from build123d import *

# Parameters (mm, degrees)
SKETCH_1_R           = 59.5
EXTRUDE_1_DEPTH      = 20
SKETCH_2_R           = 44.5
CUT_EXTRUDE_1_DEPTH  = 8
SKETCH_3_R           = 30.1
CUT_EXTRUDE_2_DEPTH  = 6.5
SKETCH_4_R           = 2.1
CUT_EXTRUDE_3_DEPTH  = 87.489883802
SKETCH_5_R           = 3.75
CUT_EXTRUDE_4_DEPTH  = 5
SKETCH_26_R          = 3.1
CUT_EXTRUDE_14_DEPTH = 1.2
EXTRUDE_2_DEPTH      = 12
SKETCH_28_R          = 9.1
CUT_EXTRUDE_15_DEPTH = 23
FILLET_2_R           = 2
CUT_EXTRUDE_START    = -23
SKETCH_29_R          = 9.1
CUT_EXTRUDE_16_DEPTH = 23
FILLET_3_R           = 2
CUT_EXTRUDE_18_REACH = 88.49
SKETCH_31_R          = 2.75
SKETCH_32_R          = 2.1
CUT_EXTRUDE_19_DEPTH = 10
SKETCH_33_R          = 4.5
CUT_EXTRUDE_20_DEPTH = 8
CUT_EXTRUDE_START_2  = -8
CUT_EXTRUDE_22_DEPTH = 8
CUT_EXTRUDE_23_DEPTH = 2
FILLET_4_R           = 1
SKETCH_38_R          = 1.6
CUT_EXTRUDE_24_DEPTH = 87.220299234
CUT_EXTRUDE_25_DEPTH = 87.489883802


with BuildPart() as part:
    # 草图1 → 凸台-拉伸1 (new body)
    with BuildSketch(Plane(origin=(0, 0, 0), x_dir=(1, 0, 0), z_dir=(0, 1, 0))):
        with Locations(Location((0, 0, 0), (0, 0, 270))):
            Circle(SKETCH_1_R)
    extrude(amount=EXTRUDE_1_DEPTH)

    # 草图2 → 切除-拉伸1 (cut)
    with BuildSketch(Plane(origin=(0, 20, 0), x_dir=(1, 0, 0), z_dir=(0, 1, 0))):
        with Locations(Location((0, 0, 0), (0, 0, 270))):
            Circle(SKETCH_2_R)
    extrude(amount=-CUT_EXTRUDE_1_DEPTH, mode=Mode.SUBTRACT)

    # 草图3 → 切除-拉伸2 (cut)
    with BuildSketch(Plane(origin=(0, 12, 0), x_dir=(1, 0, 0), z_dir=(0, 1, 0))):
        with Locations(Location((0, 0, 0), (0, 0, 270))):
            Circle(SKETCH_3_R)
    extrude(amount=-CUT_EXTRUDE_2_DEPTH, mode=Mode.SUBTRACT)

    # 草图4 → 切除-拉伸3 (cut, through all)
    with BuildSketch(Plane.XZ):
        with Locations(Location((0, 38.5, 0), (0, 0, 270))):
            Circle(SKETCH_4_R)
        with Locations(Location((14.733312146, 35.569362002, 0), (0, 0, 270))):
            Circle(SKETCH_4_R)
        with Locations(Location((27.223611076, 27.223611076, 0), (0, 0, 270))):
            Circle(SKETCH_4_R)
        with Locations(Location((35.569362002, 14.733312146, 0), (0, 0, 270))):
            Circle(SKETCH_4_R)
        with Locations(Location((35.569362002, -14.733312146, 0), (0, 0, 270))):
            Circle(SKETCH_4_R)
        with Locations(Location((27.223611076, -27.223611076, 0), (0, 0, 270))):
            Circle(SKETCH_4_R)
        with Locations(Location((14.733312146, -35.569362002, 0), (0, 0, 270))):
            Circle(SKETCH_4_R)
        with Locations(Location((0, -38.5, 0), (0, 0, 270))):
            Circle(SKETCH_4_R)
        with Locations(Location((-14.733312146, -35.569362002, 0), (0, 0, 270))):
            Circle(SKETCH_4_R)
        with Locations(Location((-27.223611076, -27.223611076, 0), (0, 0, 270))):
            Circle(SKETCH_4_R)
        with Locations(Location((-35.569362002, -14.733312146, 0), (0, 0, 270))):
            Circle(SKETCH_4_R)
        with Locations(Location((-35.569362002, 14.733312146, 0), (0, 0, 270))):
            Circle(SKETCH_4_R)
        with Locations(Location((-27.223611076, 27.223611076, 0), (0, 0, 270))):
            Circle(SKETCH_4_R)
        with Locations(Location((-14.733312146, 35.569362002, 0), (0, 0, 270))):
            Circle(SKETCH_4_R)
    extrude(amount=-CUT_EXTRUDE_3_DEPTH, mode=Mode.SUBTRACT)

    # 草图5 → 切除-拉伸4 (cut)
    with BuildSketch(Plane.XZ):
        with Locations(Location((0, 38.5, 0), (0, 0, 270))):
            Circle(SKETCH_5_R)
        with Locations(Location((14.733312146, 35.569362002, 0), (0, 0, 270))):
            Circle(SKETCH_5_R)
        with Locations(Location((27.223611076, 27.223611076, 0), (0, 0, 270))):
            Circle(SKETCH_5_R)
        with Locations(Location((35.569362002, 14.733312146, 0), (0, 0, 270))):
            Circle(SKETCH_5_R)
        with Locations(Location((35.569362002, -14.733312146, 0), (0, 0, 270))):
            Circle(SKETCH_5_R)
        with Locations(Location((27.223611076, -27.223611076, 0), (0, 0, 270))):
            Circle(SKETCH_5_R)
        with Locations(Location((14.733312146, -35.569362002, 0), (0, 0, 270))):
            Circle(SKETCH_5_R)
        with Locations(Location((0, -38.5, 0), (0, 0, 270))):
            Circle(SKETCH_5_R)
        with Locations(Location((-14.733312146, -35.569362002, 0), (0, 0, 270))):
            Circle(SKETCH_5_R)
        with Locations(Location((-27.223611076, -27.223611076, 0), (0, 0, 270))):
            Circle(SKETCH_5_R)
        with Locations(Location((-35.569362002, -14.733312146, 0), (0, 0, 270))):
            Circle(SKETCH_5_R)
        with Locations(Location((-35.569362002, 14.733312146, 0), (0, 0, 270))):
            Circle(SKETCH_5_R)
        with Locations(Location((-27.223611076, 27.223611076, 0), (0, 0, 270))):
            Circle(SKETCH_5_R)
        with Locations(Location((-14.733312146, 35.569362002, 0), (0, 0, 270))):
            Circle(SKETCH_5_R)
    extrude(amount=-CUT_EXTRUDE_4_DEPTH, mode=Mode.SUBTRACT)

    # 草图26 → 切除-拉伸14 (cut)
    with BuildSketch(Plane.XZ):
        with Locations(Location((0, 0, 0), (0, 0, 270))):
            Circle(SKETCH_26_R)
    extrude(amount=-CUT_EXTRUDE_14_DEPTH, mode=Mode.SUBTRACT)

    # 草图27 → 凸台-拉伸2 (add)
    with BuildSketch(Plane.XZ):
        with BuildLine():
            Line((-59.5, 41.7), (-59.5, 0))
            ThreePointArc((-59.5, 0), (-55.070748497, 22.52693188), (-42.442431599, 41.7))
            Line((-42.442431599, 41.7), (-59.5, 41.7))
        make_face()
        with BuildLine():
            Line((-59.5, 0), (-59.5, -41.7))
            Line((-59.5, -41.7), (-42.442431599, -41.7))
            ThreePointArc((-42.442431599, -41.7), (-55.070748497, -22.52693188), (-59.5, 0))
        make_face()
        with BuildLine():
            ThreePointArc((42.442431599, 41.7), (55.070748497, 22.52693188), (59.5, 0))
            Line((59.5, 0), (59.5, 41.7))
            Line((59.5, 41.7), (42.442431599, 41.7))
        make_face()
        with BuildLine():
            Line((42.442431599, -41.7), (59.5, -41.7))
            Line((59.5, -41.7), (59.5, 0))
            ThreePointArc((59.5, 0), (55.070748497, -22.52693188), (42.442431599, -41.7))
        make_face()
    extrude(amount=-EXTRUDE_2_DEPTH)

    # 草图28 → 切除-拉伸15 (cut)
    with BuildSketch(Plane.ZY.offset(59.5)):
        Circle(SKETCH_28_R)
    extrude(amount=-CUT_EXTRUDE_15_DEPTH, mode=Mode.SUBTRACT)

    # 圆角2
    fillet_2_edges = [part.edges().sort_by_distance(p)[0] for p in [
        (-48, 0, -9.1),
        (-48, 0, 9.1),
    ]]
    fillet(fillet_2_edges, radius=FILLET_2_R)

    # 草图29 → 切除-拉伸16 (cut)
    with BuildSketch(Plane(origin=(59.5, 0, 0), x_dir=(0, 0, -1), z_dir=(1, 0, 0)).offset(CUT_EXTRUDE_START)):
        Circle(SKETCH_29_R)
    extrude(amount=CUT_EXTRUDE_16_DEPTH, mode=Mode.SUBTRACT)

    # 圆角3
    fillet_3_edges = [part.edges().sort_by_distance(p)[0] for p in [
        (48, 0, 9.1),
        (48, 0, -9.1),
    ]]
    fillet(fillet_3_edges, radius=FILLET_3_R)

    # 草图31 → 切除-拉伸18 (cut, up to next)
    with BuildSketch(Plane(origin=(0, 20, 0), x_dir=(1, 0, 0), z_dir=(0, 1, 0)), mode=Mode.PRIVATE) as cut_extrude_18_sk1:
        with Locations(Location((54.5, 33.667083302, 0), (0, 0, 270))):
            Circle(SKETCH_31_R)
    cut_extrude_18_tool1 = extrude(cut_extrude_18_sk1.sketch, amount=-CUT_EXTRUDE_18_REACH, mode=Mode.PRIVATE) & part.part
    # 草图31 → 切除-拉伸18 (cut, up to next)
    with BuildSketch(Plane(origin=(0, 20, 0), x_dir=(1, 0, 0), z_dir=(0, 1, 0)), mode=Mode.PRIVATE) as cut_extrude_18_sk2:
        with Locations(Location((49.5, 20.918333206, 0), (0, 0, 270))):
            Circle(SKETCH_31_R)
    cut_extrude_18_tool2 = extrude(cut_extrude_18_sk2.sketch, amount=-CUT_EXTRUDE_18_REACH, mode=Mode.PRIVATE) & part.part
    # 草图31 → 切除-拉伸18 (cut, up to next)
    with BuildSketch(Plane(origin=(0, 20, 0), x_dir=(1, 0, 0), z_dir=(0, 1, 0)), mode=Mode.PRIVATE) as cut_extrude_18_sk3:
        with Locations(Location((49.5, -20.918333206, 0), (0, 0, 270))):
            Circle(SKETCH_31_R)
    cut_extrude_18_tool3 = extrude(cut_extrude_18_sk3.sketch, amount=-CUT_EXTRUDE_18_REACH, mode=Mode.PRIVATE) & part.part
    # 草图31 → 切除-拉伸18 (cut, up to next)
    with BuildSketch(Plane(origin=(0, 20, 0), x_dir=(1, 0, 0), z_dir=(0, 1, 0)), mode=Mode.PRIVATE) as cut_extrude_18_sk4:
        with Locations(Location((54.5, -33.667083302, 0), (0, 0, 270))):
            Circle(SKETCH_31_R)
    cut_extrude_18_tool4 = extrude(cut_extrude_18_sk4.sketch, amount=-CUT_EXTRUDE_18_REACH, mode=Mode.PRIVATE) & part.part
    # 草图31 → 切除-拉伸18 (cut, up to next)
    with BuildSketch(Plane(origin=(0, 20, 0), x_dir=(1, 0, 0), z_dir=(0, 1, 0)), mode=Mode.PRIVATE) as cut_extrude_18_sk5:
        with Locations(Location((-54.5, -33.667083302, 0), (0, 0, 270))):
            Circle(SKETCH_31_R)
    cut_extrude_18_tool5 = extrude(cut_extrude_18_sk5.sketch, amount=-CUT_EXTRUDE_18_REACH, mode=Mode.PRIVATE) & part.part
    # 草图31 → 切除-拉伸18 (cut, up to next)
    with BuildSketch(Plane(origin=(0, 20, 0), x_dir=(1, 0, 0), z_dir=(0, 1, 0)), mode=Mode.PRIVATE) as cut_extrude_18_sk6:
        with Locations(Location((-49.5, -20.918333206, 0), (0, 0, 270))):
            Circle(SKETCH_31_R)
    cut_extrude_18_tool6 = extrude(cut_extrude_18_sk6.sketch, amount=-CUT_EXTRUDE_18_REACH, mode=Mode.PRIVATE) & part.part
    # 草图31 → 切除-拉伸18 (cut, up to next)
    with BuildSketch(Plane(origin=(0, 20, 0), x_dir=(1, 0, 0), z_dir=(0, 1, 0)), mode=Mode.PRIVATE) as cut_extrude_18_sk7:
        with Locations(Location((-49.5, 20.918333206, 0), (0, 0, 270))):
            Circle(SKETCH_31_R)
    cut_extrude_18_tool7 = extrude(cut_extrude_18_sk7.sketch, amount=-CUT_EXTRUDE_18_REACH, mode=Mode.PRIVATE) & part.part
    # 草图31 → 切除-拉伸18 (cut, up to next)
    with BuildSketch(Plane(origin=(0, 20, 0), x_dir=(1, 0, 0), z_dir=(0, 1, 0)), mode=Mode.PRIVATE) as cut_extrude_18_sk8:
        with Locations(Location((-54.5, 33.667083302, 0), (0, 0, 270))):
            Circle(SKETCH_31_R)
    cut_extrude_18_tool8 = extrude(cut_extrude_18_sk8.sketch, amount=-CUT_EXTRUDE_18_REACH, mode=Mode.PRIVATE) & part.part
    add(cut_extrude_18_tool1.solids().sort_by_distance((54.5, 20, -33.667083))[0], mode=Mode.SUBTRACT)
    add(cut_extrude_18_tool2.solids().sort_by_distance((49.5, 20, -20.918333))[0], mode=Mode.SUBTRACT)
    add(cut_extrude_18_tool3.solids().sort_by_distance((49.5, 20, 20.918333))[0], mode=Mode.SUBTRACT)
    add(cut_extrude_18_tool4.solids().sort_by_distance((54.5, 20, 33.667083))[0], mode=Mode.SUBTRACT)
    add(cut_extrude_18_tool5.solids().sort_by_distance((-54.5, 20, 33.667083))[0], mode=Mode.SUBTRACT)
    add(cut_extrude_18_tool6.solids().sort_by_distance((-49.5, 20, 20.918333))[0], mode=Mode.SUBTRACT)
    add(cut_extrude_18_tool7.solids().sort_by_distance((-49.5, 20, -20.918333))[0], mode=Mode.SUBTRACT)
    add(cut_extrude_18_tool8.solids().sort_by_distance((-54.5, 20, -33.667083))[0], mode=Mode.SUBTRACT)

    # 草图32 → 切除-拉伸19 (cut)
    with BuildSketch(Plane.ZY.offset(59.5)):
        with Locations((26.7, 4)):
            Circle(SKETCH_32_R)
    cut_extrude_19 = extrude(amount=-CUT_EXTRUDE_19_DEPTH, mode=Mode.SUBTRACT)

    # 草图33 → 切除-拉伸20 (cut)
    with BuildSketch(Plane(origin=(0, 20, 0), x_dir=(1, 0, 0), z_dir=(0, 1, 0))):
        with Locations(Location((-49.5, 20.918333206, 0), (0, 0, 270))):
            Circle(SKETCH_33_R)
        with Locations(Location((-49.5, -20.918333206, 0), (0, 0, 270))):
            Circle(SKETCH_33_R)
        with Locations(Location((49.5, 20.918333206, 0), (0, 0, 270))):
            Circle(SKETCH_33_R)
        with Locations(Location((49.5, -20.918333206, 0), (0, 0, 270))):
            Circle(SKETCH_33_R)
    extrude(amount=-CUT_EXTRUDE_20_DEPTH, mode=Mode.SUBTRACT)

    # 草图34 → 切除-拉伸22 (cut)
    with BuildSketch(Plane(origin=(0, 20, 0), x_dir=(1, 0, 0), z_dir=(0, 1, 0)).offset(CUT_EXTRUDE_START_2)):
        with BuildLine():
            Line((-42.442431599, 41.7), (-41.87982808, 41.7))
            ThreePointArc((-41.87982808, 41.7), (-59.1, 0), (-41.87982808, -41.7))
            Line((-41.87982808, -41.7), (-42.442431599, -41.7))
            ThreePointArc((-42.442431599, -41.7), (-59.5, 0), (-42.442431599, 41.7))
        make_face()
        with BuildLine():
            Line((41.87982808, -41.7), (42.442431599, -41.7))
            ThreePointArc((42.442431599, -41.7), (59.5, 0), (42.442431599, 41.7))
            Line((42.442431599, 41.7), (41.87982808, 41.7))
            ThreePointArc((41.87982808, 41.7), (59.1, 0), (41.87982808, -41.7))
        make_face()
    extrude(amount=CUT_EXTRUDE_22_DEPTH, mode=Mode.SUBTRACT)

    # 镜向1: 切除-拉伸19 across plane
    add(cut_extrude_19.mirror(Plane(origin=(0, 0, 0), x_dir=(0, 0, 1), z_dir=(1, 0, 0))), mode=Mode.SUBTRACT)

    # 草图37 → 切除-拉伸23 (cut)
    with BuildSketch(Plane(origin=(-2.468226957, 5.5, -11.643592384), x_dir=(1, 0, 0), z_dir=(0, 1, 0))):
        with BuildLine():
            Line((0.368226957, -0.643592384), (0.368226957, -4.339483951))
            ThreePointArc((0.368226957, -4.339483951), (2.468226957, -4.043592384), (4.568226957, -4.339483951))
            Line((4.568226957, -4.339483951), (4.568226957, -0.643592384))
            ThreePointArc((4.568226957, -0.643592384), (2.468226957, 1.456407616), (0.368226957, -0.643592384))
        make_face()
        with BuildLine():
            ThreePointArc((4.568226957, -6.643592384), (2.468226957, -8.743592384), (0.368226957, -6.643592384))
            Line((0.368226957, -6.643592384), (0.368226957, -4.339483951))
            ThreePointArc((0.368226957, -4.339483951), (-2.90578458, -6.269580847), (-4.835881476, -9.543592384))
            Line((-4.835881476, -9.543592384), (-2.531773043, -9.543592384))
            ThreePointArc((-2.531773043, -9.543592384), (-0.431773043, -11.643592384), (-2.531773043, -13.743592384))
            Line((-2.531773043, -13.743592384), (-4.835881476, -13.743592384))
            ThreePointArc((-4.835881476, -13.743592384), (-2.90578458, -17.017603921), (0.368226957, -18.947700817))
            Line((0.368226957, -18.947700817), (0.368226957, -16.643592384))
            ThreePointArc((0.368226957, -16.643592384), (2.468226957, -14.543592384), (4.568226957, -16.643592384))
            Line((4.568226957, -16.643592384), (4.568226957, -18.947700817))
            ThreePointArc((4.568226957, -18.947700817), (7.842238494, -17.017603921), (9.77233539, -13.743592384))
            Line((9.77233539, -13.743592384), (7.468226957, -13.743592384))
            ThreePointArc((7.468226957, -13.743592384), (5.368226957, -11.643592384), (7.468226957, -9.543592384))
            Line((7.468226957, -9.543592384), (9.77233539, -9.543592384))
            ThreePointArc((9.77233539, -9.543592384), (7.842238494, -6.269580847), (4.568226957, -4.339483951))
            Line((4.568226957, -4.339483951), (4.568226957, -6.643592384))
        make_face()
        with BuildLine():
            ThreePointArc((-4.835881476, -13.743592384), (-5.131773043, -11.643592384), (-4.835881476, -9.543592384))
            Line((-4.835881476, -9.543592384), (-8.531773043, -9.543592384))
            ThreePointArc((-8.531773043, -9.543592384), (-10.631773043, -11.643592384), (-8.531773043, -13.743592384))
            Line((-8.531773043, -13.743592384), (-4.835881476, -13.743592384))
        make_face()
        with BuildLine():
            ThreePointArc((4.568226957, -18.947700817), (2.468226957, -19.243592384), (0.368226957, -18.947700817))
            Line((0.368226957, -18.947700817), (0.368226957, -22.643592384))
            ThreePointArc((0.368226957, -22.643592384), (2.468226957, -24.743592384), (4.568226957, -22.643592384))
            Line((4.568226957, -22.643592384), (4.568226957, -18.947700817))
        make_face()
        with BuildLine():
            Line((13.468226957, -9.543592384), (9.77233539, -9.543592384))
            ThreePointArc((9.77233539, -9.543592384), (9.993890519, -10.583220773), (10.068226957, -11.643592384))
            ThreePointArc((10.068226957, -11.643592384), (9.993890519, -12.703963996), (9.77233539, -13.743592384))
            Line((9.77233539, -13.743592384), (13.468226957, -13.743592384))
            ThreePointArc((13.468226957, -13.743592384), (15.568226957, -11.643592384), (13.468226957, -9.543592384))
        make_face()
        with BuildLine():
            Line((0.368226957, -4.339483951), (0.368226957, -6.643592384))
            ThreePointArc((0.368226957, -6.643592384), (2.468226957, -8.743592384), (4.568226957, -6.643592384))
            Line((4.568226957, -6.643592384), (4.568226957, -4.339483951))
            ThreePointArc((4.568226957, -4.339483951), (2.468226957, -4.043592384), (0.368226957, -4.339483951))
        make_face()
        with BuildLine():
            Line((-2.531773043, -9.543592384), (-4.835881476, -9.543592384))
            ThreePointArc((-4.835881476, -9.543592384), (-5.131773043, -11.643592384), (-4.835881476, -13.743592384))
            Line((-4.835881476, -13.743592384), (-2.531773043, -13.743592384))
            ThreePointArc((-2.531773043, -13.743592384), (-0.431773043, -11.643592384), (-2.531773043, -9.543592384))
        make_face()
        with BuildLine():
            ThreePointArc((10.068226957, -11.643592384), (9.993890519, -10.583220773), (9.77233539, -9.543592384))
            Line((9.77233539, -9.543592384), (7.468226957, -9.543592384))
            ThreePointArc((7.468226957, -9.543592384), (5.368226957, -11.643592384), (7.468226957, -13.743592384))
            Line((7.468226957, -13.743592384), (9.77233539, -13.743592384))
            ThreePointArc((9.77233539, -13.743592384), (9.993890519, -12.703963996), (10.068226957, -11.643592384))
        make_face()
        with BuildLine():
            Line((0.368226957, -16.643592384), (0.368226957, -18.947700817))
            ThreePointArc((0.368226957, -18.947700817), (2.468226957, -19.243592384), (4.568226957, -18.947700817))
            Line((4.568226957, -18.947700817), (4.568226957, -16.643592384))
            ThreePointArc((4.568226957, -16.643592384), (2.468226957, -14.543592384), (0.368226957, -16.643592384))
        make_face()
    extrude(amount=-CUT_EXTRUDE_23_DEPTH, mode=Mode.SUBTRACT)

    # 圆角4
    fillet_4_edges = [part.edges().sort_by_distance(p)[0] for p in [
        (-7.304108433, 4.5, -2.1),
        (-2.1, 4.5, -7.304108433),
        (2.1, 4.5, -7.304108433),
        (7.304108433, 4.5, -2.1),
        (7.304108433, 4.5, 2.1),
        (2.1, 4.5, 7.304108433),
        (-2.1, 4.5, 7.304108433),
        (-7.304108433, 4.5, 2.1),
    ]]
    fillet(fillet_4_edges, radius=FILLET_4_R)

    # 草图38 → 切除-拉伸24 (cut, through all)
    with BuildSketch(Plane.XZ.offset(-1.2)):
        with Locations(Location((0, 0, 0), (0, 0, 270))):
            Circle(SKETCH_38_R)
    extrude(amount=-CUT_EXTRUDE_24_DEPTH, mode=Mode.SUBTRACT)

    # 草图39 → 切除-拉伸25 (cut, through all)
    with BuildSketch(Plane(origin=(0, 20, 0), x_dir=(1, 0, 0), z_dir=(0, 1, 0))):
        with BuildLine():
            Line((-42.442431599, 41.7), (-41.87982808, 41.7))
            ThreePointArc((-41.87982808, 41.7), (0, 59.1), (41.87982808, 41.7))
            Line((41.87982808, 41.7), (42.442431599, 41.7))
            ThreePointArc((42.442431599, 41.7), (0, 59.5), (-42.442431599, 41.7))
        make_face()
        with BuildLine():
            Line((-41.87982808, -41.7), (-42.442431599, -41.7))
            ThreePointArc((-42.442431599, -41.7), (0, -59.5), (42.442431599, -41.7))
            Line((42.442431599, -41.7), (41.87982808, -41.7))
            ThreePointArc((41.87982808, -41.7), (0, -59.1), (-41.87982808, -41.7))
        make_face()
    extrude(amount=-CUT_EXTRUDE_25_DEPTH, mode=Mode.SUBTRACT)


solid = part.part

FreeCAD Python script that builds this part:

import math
import FreeCAD as App
import Part
import Sketcher
Q = App.Units.Quantity


def edges_at(feature, points):
    """Names of the edges that pass closest to the given points."""
    edges = feature.Shape.Edges
    near = lambda p: min(range(len(edges)), key=lambda i: edges[i].distToShape(Part.Vertex(*p))[0])
    return sorted({f"Edge{near(p) + 1}" for p in points})

doc = App.newDocument("Part")
body = doc.addObject("PartDesign::Body", "Body")

sketch1 = body.newObject("Sketcher::SketchObject", "Sketch")
sketch1.AttachmentSupport = (doc.getObject("XZ_Plane"), [""])
sketch1.MapMode = "FlatFace"
sketch1.addGeometry(Part.Circle(App.Vector(0, 0, 0), App.Vector(0, 0, 1), 60), False)
sketch1.addConstraint([
    Sketcher.Constraint("Coincident", 0, 3, -1, 1),
    Sketcher.Constraint("Diameter", 0, Q("119 mm")),
])
pad1 = body.newObject("PartDesign::Pad", "Pad")
pad1.Profile = sketch1
pad1.Length = 20
pad1.Reversed = True

sketch2 = body.newObject("Sketcher::SketchObject", "Sketch001")
sketch2.AttachmentSupport = (doc.getObject("XZ_Plane"), [""])
sketch2.MapMode = "FlatFace"
sketch2.AttachmentOffset = App.Placement(App.Vector(0, 0, -20), App.Rotation())
sketch2.addGeometry(Part.Circle(App.Vector(0, 0, 0), App.Vector(0, 0, 1), 44), False)
sketch2.addConstraint([
    Sketcher.Constraint("Coincident", 0, 3, -1, 1),
    Sketcher.Constraint("Diameter", 0, Q("89 mm")),
])
pocket1 = body.newObject("PartDesign::Pocket", "Pocket")
pocket1.Profile = sketch2
pocket1.Length = 8
pocket1.Reversed = True

sketch3 = body.newObject("Sketcher::SketchObject", "Sketch002")
sketch3.AttachmentSupport = (doc.getObject("XZ_Plane"), [""])
sketch3.MapMode = "FlatFace"
sketch3.AttachmentOffset = App.Placement(App.Vector(0, 0, -12), App.Rotation())
sketch3.addGeometry(Part.Circle(App.Vector(0, 0, 0), App.Vector(0, 0, 1), 30), False)
sketch3.addConstraint([
    Sketcher.Constraint("Coincident", 0, 3, -1, 1),
    Sketcher.Constraint("Diameter", 0, Q("60.2 mm")),
])
pocket2 = body.newObject("PartDesign::Pocket", "Pocket001")
pocket2.Profile = sketch3
pocket2.Length = 6.5
pocket2.Reversed = True

sketch4 = body.newObject("Sketcher::SketchObject", "Sketch003")
sketch4.AttachmentSupport = (doc.getObject("XZ_Plane"), [""])
sketch4.MapMode = "FlatFace"
sketch4.addGeometry([
    Part.Circle(App.Vector(0, 38.5, 0), App.Vector(0, 0, 1), 2.1),
    Part.Circle(App.Vector(14.7, 35.6, 0), App.Vector(0, 0, 1), 2.1),
    Part.Circle(App.Vector(27.2, 27.2, 0), App.Vector(0, 0, 1), 2.1),
    Part.Circle(App.Vector(35.6, 14.7, 0), App.Vector(0, 0, 1), 2.1),
    Part.Circle(App.Vector(35.6, -14.7, 0), App.Vector(0, 0, 1), 2.1),
    Part.Circle(App.Vector(27.2, -27.2, 0), App.Vector(0, 0, 1), 2.1),
    Part.Circle(App.Vector(14.7, -35.6, 0), App.Vector(0, 0, 1), 2.1),
    Part.Circle(App.Vector(0, -38.5, 0), App.Vector(0, 0, 1), 2.1),
    Part.Circle(App.Vector(-14.7, -35.6, 0), App.Vector(0, 0, 1), 2.1),
    Part.Circle(App.Vector(-27.2, -27.2, 0), App.Vector(0, 0, 1), 2.1),
    Part.Circle(App.Vector(-35.6, -14.7, 0), App.Vector(0, 0, 1), 2.1),
    Part.Circle(App.Vector(-35.6, 14.7, 0), App.Vector(0, 0, 1), 2.1),
    Part.Circle(App.Vector(-27.2, 27.2, 0), App.Vector(0, 0, 1), 2.1),
    Part.Circle(App.Vector(-14.7, 35.6, 0), App.Vector(0, 0, 1), 2.1),
], False)
sketch4.addConstraint([
    Sketcher.Constraint("Equal", 0, 1),
    Sketcher.Constraint("Equal", 1, 2),
    Sketcher.Constraint("Equal", 2, 3),
    Sketcher.Constraint("Equal", 3, 4),
    Sketcher.Constraint("Equal", 4, 5),
    Sketcher.Constraint("Equal", 5, 6),
    Sketcher.Constraint("Equal", 6, 7),
    Sketcher.Constraint("Equal", 7, 8),
    Sketcher.Constraint("Equal", 8, 9),
    Sketcher.Constraint("Equal", 9, 10),
    Sketcher.Constraint("Equal", 10, 11),
    Sketcher.Constraint("Equal", 11, 12),
    Sketcher.Constraint("Equal", 12, 13),
    Sketcher.Constraint("Symmetric", 0, 3, 7, 3, -1, 1),
    Sketcher.Constraint("Symmetric", 1, 3, 8, 3, -1, 1),
    Sketcher.Constraint("Symmetric", 2, 3, 9, 3, -1, 1),
    Sketcher.Constraint("Symmetric", 3, 3, 10, 3, -1, 1),
    Sketcher.Constraint("Symmetric", 4, 3, 11, 3, -1, 1),
    Sketcher.Constraint("Symmetric", 5, 3, 12, 3, -1, 1),
    Sketcher.Constraint("Symmetric", 6, 3, 13, 3, -1, 1),
    Sketcher.Constraint("Symmetric", 6, 3, 8, 3, -2),
    Sketcher.Constraint("Symmetric", 5, 3, 9, 3, -2),
    Sketcher.Constraint("Symmetric", 4, 3, 10, 3, -2),
    Sketcher.Constraint("PointOnObject", 0, 3, -2),
    Sketcher.Constraint("Diameter", 0, Q("4.2 mm")),
    Sketcher.Constraint("DistanceY", -1, 1, 0, 3, Q("38.5 mm")),
    Sketcher.Constraint("DistanceX", 1, 3, 2, 3, Q("12.490299 mm")),
    Sketcher.Constraint("DistanceY", 3, 3, 2, 3, Q("12.490299 mm")),
    Sketcher.Constraint("DistanceX", -1, 1, 2, 3, Q("27.223611 mm")),
    Sketcher.Constraint("DistanceY", -1, 1, 2, 3, Q("27.223611 mm")),
    Sketcher.Constraint("DistanceY", 2, 3, 1, 3, Q("8.345751 mm")),
    Sketcher.Constraint("DistanceX", 2, 3, 3, 3, Q("8.345751 mm")),
])
pocket3 = body.newObject("PartDesign::Pocket", "Pocket002")
pocket3.Profile = sketch4
pocket3.Type = "ThroughAll"

sketch5 = body.newObject("Sketcher::SketchObject", "Sketch004")
sketch5.AttachmentSupport = (doc.getObject("XZ_Plane"), [""])
sketch5.MapMode = "FlatFace"
sketch5.addGeometry([
    Part.Circle(App.Vector(0, 38.5, 0), App.Vector(0, 0, 1), 3.8),
    Part.Circle(App.Vector(14.7, 35.6, 0), App.Vector(0, 0, 1), 3.8),
    Part.Circle(App.Vector(27.2, 27.2, 0), App.Vector(0, 0, 1), 3.8),
    Part.Circle(App.Vector(35.6, 14.7, 0), App.Vector(0, 0, 1), 3.8),
    Part.Circle(App.Vector(35.6, -14.7, 0), App.Vector(0, 0, 1), 3.8),
    Part.Circle(App.Vector(27.2, -27.2, 0), App.Vector(0, 0, 1), 3.8),
    Part.Circle(App.Vector(14.7, -35.6, 0), App.Vector(0, 0, 1), 3.8),
    Part.Circle(App.Vector(0, -38.5, 0), App.Vector(0, 0, 1), 3.8),
    Part.Circle(App.Vector(-14.7, -35.6, 0), App.Vector(0, 0, 1), 3.8),
    Part.Circle(App.Vector(-27.2, -27.2, 0), App.Vector(0, 0, 1), 3.8),
    Part.Circle(App.Vector(-35.6, -14.7, 0), App.Vector(0, 0, 1), 3.8),
    Part.Circle(App.Vector(-35.6, 14.7, 0), App.Vector(0, 0, 1), 3.8),
    Part.Circle(App.Vector(-27.2, 27.2, 0), App.Vector(0, 0, 1), 3.8),
    Part.Circle(App.Vector(-14.7, 35.6, 0), App.Vector(0, 0, 1), 3.8),
], False)
sketch5.addConstraint([
    Sketcher.Constraint("Equal", 0, 1),
    Sketcher.Constraint("Equal", 1, 2),
    Sketcher.Constraint("Equal", 2, 3),
    Sketcher.Constraint("Equal", 3, 4),
    Sketcher.Constraint("Equal", 4, 5),
    Sketcher.Constraint("Equal", 5, 6),
    Sketcher.Constraint("Equal", 6, 7),
    Sketcher.Constraint("Equal", 7, 8),
    Sketcher.Constraint("Equal", 8, 9),
    Sketcher.Constraint("Equal", 9, 10),
    Sketcher.Constraint("Equal", 10, 11),
    Sketcher.Constraint("Equal", 11, 12),
    Sketcher.Constraint("Equal", 12, 13),
    Sketcher.Constraint("Symmetric", 0, 3, 7, 3, -1, 1),
    Sketcher.Constraint("Symmetric", 1, 3, 8, 3, -1, 1),
    Sketcher.Constraint("Symmetric", 2, 3, 9, 3, -1, 1),
    Sketcher.Constraint("Symmetric", 3, 3, 10, 3, -1, 1),
    Sketcher.Constraint("Symmetric", 4, 3, 11, 3, -1, 1),
    Sketcher.Constraint("Symmetric", 5, 3, 12, 3, -1, 1),
    Sketcher.Constraint("Symmetric", 6, 3, 13, 3, -1, 1),
    Sketcher.Constraint("Symmetric", 6, 3, 8, 3, -2),
    Sketcher.Constraint("Symmetric", 5, 3, 9, 3, -2),
    Sketcher.Constraint("Symmetric", 4, 3, 10, 3, -2),
    Sketcher.Constraint("PointOnObject", 0, 3, -2),
    Sketcher.Constraint("Diameter", 0, Q("7.5 mm")),
    Sketcher.Constraint("DistanceY", -1, 1, 0, 3, Q("38.5 mm")),
    Sketcher.Constraint("DistanceX", 1, 3, 2, 3, Q("12.490299 mm")),
    Sketcher.Constraint("DistanceY", 3, 3, 2, 3, Q("12.490299 mm")),
    Sketcher.Constraint("DistanceX", -1, 1, 2, 3, Q("27.223611 mm")),
    Sketcher.Constraint("DistanceY", -1, 1, 2, 3, Q("27.223611 mm")),
    Sketcher.Constraint("DistanceY", 2, 3, 1, 3, Q("8.345751 mm")),
    Sketcher.Constraint("DistanceX", 2, 3, 3, 3, Q("8.345751 mm")),
])
pocket4 = body.newObject("PartDesign::Pocket", "Pocket003")
pocket4.Profile = sketch5
pocket4.Length = 5

sketch6 = body.newObject("Sketcher::SketchObject", "Sketch005")
sketch6.AttachmentSupport = (doc.getObject("XZ_Plane"), [""])
sketch6.MapMode = "FlatFace"
sketch6.addGeometry(Part.Circle(App.Vector(0, 0, 0), App.Vector(0, 0, 1), 3.1), False)
sketch6.addConstraint([
    Sketcher.Constraint("Coincident", 0, 3, -1, 1),
    Sketcher.Constraint("Diameter", 0, Q("6.2 mm")),
])
pocket5 = body.newObject("PartDesign::Pocket", "Pocket004")
pocket5.Profile = sketch6
pocket5.Length = 1.2

sketch7 = body.newObject("Sketcher::SketchObject", "Sketch006")
sketch7.AttachmentSupport = (doc.getObject("XZ_Plane"), [""])
sketch7.MapMode = "FlatFace"
sketch7.addGeometry([
    Part.LineSegment(App.Vector(-60, 42, 0), App.Vector(-60, 0, 0)),
    Part.ArcOfCircle(Part.Circle(App.Vector(0, 0, 0), App.Vector(0, 0, 1), 60), math.radians(136), math.radians(180)),
    Part.LineSegment(App.Vector(-42, 42, 0), App.Vector(-60, 42, 0)),
    Part.LineSegment(App.Vector(-60, 0, 0), App.Vector(-60, -42, 0)),
    Part.LineSegment(App.Vector(-60, -42, 0), App.Vector(-42, -42, 0)),
    Part.ArcOfCircle(Part.Circle(App.Vector(0, 0, 0), App.Vector(0, 0, 1), 60), math.radians(-180), math.radians(-136)),
    Part.ArcOfCircle(Part.Circle(App.Vector(0, 0, 0), App.Vector(0, 0, 1), 60), math.radians(0), math.radians(44)),
    Part.LineSegment(App.Vector(60, 0, 0), App.Vector(60, 42, 0)),
    Part.LineSegment(App.Vector(60, 42, 0), App.Vector(42, 42, 0)),
    Part.LineSegment(App.Vector(42, -42, 0), App.Vector(60, -42, 0)),
    Part.LineSegment(App.Vector(60, -42, 0), App.Vector(60, 0, 0)),
    Part.ArcOfCircle(Part.Circle(App.Vector(0, 0, 0), App.Vector(0, 0, 1), 60), math.radians(-44), math.radians(0)),
], False)
sketch7.addConstraint([
    Sketcher.Constraint("Tangent", 0, 2, 1, 2),
    Sketcher.Constraint("Coincident", 1, 1, 2, 1),
    Sketcher.Constraint("Coincident", 2, 2, 0, 1),
    Sketcher.Constraint("Coincident", 3, 2, 4, 1),
    Sketcher.Constraint("Coincident", 4, 2, 5, 2),
    Sketcher.Constraint("Tangent", 5, 1, 3, 1),
    Sketcher.Constraint("Tangent", 6, 1, 7, 1),
    Sketcher.Constraint("Coincident", 7, 2, 8, 1),
    Sketcher.Constraint("Coincident", 8, 2, 6, 2),
    Sketcher.Constraint("Coincident", 9, 2, 10, 1),
    Sketcher.Constraint("Tangent", 10, 2, 11, 2),
    Sketcher.Constraint("Coincident", 11, 1, 9, 1),
    Sketcher.Constraint("Vertical", 0),
    Sketcher.Constraint("Horizontal", 2),
    Sketcher.Constraint("Vertical", 3),
    Sketcher.Constraint("Horizontal", 4),
    Sketcher.Constraint("Vertical", 7),
    Sketcher.Constraint("Horizontal", 8),
    Sketcher.Constraint("Horizontal", 9),
    Sketcher.Constraint("Vertical", 10),
    Sketcher.Constraint("Coincident", 1, 3, -1, 1),
    Sketcher.Constraint("Coincident", 5, 3, -1, 1),
    Sketcher.Constraint("Coincident", 6, 3, -1, 1),
    Sketcher.Constraint("Coincident", 11, 3, -1, 1),
    Sketcher.Constraint("Equal", 1, 5),
    Sketcher.Constraint("Equal", 5, 6),
    Sketcher.Constraint("Equal", 6, 11),
    Sketcher.Constraint("Horizontal", 2, 2, 7, 2),
    Sketcher.Constraint("Horizontal", 4, 2, 9, 2),
    Sketcher.Constraint("Vertical", 1, 1, 4, 2),
    Sketcher.Constraint("Radius", 1, Q("59.5 mm")),
    Sketcher.Constraint("DistanceY", 0, 2, 0, 1, Q("41.7 mm")),
])
pad2 = body.newObject("PartDesign::Pad", "Pad001")
pad2.Profile = sketch7
pad2.Length = 12
pad2.Reversed = True

sketch8 = body.newObject("Sketcher::SketchObject", "Sketch007")
sketch8.AttachmentSupport = (doc.getObject("YZ_Plane"), [""])
sketch8.MapMode = "FlatFace"
sketch8.AttachmentOffset = App.Placement(App.Vector(0, 0, -59.5), App.Rotation())
sketch8.addGeometry(Part.Circle(App.Vector(0, 0, 0), App.Vector(0, 0, 1), 9), False)
sketch8.addConstraint([
    Sketcher.Constraint("Coincident", 0, 3, -1, 1),
    Sketcher.Constraint("Diameter", 0, Q("18.2 mm")),
])
pocket6 = body.newObject("PartDesign::Pocket", "Pocket005")
pocket6.Profile = sketch8
pocket6.Length = 23
pocket6.Reversed = True
doc.recompute()

fillet = body.newObject("PartDesign::Fillet", "Fillet")
fillet.Base = (pocket6, edges_at(pocket6, [(-48, 0, -9.1), (-48, 0, 9.1)]))
fillet.Radius = 2

sketch9 = body.newObject("Sketcher::SketchObject", "Sketch008")
sketch9.AttachmentSupport = (doc.getObject("YZ_Plane"), [""])
sketch9.MapMode = "FlatFace"
sketch9.AttachmentOffset = App.Placement(App.Vector(0, 0, 36.5), App.Rotation())
sketch9.addGeometry(Part.Circle(App.Vector(0, 0, 0), App.Vector(0, 0, 1), 9), False)
sketch9.addConstraint([
    Sketcher.Constraint("Coincident", 0, 3, -1, 1),
    Sketcher.Constraint("Diameter", 0, Q("18.2 mm")),
])
pocket7 = body.newObject("PartDesign::Pocket", "Pocket006")
pocket7.Profile = sketch9
pocket7.Length = 23
pocket7.Reversed = True
doc.recompute()

fillet2 = body.newObject("PartDesign::Fillet", "Fillet001")
fillet2.Base = (pocket7, edges_at(pocket7, [(48, 0, 9.1), (48, 0, -9.1)]))
fillet2.Radius = 2

sketch10 = body.newObject("Sketcher::SketchObject", "Sketch009")
sketch10.AttachmentSupport = (doc.getObject("XZ_Plane"), [""])
sketch10.MapMode = "FlatFace"
sketch10.AttachmentOffset = App.Placement(App.Vector(0, 0, -20), App.Rotation())
sketch10.addGeometry(Part.Circle(App.Vector(54.5, -33.7, 0), App.Vector(0, 0, 1), 2.8), False)
sketch10.addConstraint([
    Sketcher.Constraint("Diameter", 0, Q("5.5 mm")),
    Sketcher.Constraint("DistanceX", -1, 1, 0, 3, Q("54.5 mm")),
    Sketcher.Constraint("DistanceY", 0, 3, -1, 1, Q("33.667083 mm")),
])
pocket8 = body.newObject("PartDesign::Pocket", "Pocket007")
pocket8.Profile = sketch10
pocket8.Length = 20
pocket8.Reversed = True

sketch11 = body.newObject("Sketcher::SketchObject", "Sketch010")
sketch11.AttachmentSupport = (doc.getObject("XZ_Plane"), [""])
sketch11.MapMode = "FlatFace"
sketch11.AttachmentOffset = App.Placement(App.Vector(0, 0, -20), App.Rotation())
sketch11.addGeometry(Part.Circle(App.Vector(49.5, -20.9, 0), App.Vector(0, 0, 1), 2.8), False)
sketch11.addConstraint([
    Sketcher.Constraint("Diameter", 0, Q("5.5 mm")),
    Sketcher.Constraint("DistanceX", -1, 1, 0, 3, Q("49.5 mm")),
    Sketcher.Constraint("DistanceY", 0, 3, -1, 1, Q("20.918333 mm")),
])
pocket9 = body.newObject("PartDesign::Pocket", "Pocket008")
pocket9.Profile = sketch11
pocket9.Type = "UpToFirst"
pocket9.Reversed = True

sketch12 = body.newObject("Sketcher::SketchObject", "Sketch011")
sketch12.AttachmentSupport = (doc.getObject("XZ_Plane"), [""])
sketch12.MapMode = "FlatFace"
sketch12.AttachmentOffset = App.Placement(App.Vector(0, 0, -20), App.Rotation())
sketch12.addGeometry(Part.Circle(App.Vector(49.5, 20.9, 0), App.Vector(0, 0, 1), 2.8), False)
sketch12.addConstraint([
    Sketcher.Constraint("Diameter", 0, Q("5.5 mm")),
    Sketcher.Constraint("DistanceX", -1, 1, 0, 3, Q("49.5 mm")),
    Sketcher.Constraint("DistanceY", -1, 1, 0, 3, Q("20.918333 mm")),
])
pocket10 = body.newObject("PartDesign::Pocket", "Pocket009")
pocket10.Profile = sketch12
pocket10.Type = "UpToFirst"
pocket10.Reversed = True

sketch13 = body.newObject("Sketcher::SketchObject", "Sketch012")
sketch13.AttachmentSupport = (doc.getObject("XZ_Plane"), [""])
sketch13.MapMode = "FlatFace"
sketch13.AttachmentOffset = App.Placement(App.Vector(0, 0, -20), App.Rotation())
sketch13.addGeometry(Part.Circle(App.Vector(54.5, 33.7, 0), App.Vector(0, 0, 1), 2.8), False)
sketch13.addConstraint([
    Sketcher.Constraint("Diameter", 0, Q("5.5 mm")),
    Sketcher.Constraint("DistanceX", -1, 1, 0, 3, Q("54.5 mm")),
    Sketcher.Constraint("DistanceY", -1, 1, 0, 3, Q("33.667083 mm")),
])
pocket11 = body.newObject("PartDesign::Pocket", "Pocket010")
pocket11.Profile = sketch13
pocket11.Length = 20
pocket11.Reversed = True

sketch14 = body.newObject("Sketcher::SketchObject", "Sketch013")
sketch14.AttachmentSupport = (doc.getObject("XZ_Plane"), [""])
sketch14.MapMode = "FlatFace"
sketch14.AttachmentOffset = App.Placement(App.Vector(0, 0, -20), App.Rotation())
sketch14.addGeometry(Part.Circle(App.Vector(-54.5, 33.7, 0), App.Vector(0, 0, 1), 2.8), False)
sketch14.addConstraint([
    Sketcher.Constraint("Diameter", 0, Q("5.5 mm")),
    Sketcher.Constraint("DistanceX", 0, 3, -1, 1, Q("54.5 mm")),
    Sketcher.Constraint("DistanceY", -1, 1, 0, 3, Q("33.667083 mm")),
])
pocket12 = body.newObject("PartDesign::Pocket", "Pocket011")
pocket12.Profile = sketch14
pocket12.Length = 20
pocket12.Reversed = True

sketch15 = body.newObject("Sketcher::SketchObject", "Sketch014")
sketch15.AttachmentSupport = (doc.getObject("XZ_Plane"), [""])
sketch15.MapMode = "FlatFace"
sketch15.AttachmentOffset = App.Placement(App.Vector(0, 0, -20), App.Rotation())
sketch15.addGeometry(Part.Circle(App.Vector(-49.5, 20.9, 0), App.Vector(0, 0, 1), 2.8), False)
sketch15.addConstraint([
    Sketcher.Constraint("Diameter", 0, Q("5.5 mm")),
    Sketcher.Constraint("DistanceX", 0, 3, -1, 1, Q("49.5 mm")),
    Sketcher.Constraint("DistanceY", -1, 1, 0, 3, Q("20.918333 mm")),
])
pocket13 = body.newObject("PartDesign::Pocket", "Pocket012")
pocket13.Profile = sketch15
pocket13.Type = "UpToFirst"
pocket13.Reversed = True

sketch16 = body.newObject("Sketcher::SketchObject", "Sketch015")
sketch16.AttachmentSupport = (doc.getObject("XZ_Plane"), [""])
sketch16.MapMode = "FlatFace"
sketch16.AttachmentOffset = App.Placement(App.Vector(0, 0, -20), App.Rotation())
sketch16.addGeometry(Part.Circle(App.Vector(-49.5, -20.9, 0), App.Vector(0, 0, 1), 2.8), False)
sketch16.addConstraint([
    Sketcher.Constraint("Diameter", 0, Q("5.5 mm")),
    Sketcher.Constraint("DistanceX", 0, 3, -1, 1, Q("49.5 mm")),
    Sketcher.Constraint("DistanceY", 0, 3, -1, 1, Q("20.918333 mm")),
])
pocket14 = body.newObject("PartDesign::Pocket", "Pocket013")
pocket14.Profile = sketch16
pocket14.Type = "UpToFirst"
pocket14.Reversed = True

sketch17 = body.newObject("Sketcher::SketchObject", "Sketch016")
sketch17.AttachmentSupport = (doc.getObject("XZ_Plane"), [""])
sketch17.MapMode = "FlatFace"
sketch17.AttachmentOffset = App.Placement(App.Vector(0, 0, -20), App.Rotation())
sketch17.addGeometry(Part.Circle(App.Vector(-54.5, -33.7, 0), App.Vector(0, 0, 1), 2.8), False)
sketch17.addConstraint([
    Sketcher.Constraint("Diameter", 0, Q("5.5 mm")),
    Sketcher.Constraint("DistanceX", 0, 3, -1, 1, Q("54.5 mm")),
    Sketcher.Constraint("DistanceY", 0, 3, -1, 1, Q("33.667083 mm")),
])
pocket15 = body.newObject("PartDesign::Pocket", "Pocket014")
pocket15.Profile = sketch17
pocket15.Length = 20
pocket15.Reversed = True

sketch18 = body.newObject("Sketcher::SketchObject", "Sketch017")
sketch18.AttachmentSupport = (doc.getObject("YZ_Plane"), [""])
sketch18.MapMode = "FlatFace"
sketch18.AttachmentOffset = App.Placement(App.Vector(0, 0, -59.5), App.Rotation())
sketch18.addGeometry(Part.Circle(App.Vector(4, 26.7, 0), App.Vector(0, 0, 1), 2.1), False)
sketch18.addConstraint([
    Sketcher.Constraint("Diameter", 0, Q("4.2 mm")),
    Sketcher.Constraint("DistanceX", -1, 1, 0, 3, Q("4 mm")),
    Sketcher.Constraint("DistanceY", -1, 1, 0, 3, Q("26.7 mm")),
])
pocket16 = body.newObject("PartDesign::Pocket", "Pocket015")
pocket16.Profile = sketch18
pocket16.Length = 10
pocket16.Reversed = True

sketch19 = body.newObject("Sketcher::SketchObject", "Sketch018")
sketch19.AttachmentSupport = (doc.getObject("XZ_Plane"), [""])
sketch19.MapMode = "FlatFace"
sketch19.AttachmentOffset = App.Placement(App.Vector(0, 0, -20), App.Rotation())
sketch19.addGeometry([
    Part.Circle(App.Vector(-49.5, -20.9, 0), App.Vector(0, 0, 1), 4.5),
    Part.Circle(App.Vector(-49.5, 20.9, 0), App.Vector(0, 0, 1), 4.5),
    Part.Circle(App.Vector(49.5, -20.9, 0), App.Vector(0, 0, 1), 4.5),
    Part.Circle(App.Vector(49.5, 20.9, 0), App.Vector(0, 0, 1), 4.5),
], False)
sketch19.addConstraint([
    Sketcher.Constraint("Equal", 0, 1),
    Sketcher.Constraint("Equal", 1, 2),
    Sketcher.Constraint("Equal", 2, 3),
    Sketcher.Constraint("Symmetric", 1, 3, 2, 3, -1, 1),
    Sketcher.Constraint("Symmetric", 0, 3, 3, 3, -1, 1),
    Sketcher.Constraint("Symmetric", 0, 3, 2, 3, -2),
    Sketcher.Constraint("Diameter", 0, Q("9 mm")),
    Sketcher.Constraint("DistanceX", 0, 3, 2, 3, Q("99 mm")),
    Sketcher.Constraint("DistanceY", 0, 3, -1, 1, Q("20.918333 mm")),
])
pocket17 = body.newObject("PartDesign::Pocket", "Pocket016")
pocket17.Profile = sketch19
pocket17.Length = 8
pocket17.Reversed = True

sketch20 = body.newObject("Sketcher::SketchObject", "Sketch019")
sketch20.AttachmentSupport = (doc.getObject("XZ_Plane"), [""])
sketch20.MapMode = "FlatFace"
sketch20.AttachmentOffset = App.Placement(App.Vector(0, 0, -12), App.Rotation())
sketch20.addGeometry([
    Part.LineSegment(App.Vector(-41.9, -41.7, 0), App.Vector(-42.4, -41.7, 0)),
    Part.ArcOfCircle(Part.Circle(App.Vector(0, 0, 0), App.Vector(0, 0, 1), 59.5), math.radians(136), math.radians(224)),
    Part.LineSegment(App.Vector(-42.4, 41.7, 0), App.Vector(-41.9, 41.7, 0)),
    Part.ArcOfCircle(Part.Circle(App.Vector(0, 0, 0), App.Vector(0, 0, 1), 59.1), math.radians(135), math.radians(225)),
    Part.LineSegment(App.Vector(41.9, 41.7, 0), App.Vector(42.4, 41.7, 0)),
    Part.ArcOfCircle(Part.Circle(App.Vector(0, 0, 0), App.Vector(0, 0, 1), 59.5), math.radians(-44), math.radians(44)),
    Part.LineSegment(App.Vector(42.4, -41.7, 0), App.Vector(41.9, -41.7, 0)),
    Part.ArcOfCircle(Part.Circle(App.Vector(0, 0, 0), App.Vector(0, 0, 1), 59.1), math.radians(-45), math.radians(45)),
], False)
sketch20.addConstraint([
    Sketcher.Constraint("Coincident", 0, 2, 1, 2),
    Sketcher.Constraint("Coincident", 1, 1, 2, 1),
    Sketcher.Constraint("Coincident", 2, 2, 3, 1),
    Sketcher.Constraint("Coincident", 3, 2, 0, 1),
    Sketcher.Constraint("Coincident", 4, 2, 5, 2),
    Sketcher.Constraint("Coincident", 5, 1, 6, 1),
    Sketcher.Constraint("Coincident", 6, 2, 7, 1),
    Sketcher.Constraint("Coincident", 7, 2, 4, 1),
    Sketcher.Constraint("Horizontal", 0),
    Sketcher.Constraint("Horizontal", 2),
    Sketcher.Constraint("Horizontal", 4),
    Sketcher.Constraint("Horizontal", 6),
    Sketcher.Constraint("Coincident", 1, 3, -1, 1),
    Sketcher.Constraint("Coincident", 3, 3, -1, 1),
    Sketcher.Constraint("Coincident", 5, 3, -1, 1),
    Sketcher.Constraint("Coincident", 7, 3, -1, 1),
    Sketcher.Constraint("Equal", 1, 5),
    Sketcher.Constraint("Equal", 3, 7),
    Sketcher.Constraint("Horizontal", 2, 2, 4, 2),
    Sketcher.Constraint("Horizontal", 3, 2, 5, 1),
    Sketcher.Constraint("Vertical", 0, 2, 1, 1),
    Sketcher.Constraint("Radius", 1, Q("59.5 mm")),
    Sketcher.Constraint("Radius", 3, Q("59.1 mm")),
    Sketcher.Constraint("DistanceY", 0, 2, -1, 1, Q("41.7 mm")),
])
pocket18 = body.newObject("PartDesign::Pocket", "Pocket017")
pocket18.Profile = sketch20
pocket18.Length = 8
doc.recompute()

mirrored = body.newObject("PartDesign::Mirrored", "Mirrored")
mirrored.Originals = [pocket16]
mirrored.MirrorPlane = (doc.getObject("YZ_Plane"), [""])
body.Tip = mirrored

sketch21 = body.newObject("Sketcher::SketchObject", "Sketch020")
sketch21.AttachmentSupport = (doc.getObject("XZ_Plane"), [""])
sketch21.MapMode = "FlatFace"
sketch21.AttachmentOffset = App.Placement(App.Vector(0, 0, -5.5), App.Rotation())
sketch21.addGeometry([
    Part.LineSegment(App.Vector(-2.1, -11, 0), App.Vector(-2.1, -7.3, 0)),
    Part.ArcOfCircle(Part.Circle(App.Vector(0, 0, 0), App.Vector(0, 0, 1), 7.6), math.radians(-164), math.radians(-106)),
    Part.LineSegment(App.Vector(-7.3, -2.1, 0), App.Vector(-11, -2.1, 0)),
    Part.ArcOfCircle(Part.Circle(App.Vector(-11, 0, 0), App.Vector(0, 0, 1), 2.1), math.radians(90), math.radians(270)),
    Part.LineSegment(App.Vector(-11, 2.1, 0), App.Vector(-7.3, 2.1, 0)),
    Part.ArcOfCircle(Part.Circle(App.Vector(0, 0, 0), App.Vector(0, 0, 1), 7.6), math.radians(106), math.radians(164)),
    Part.LineSegment(App.Vector(-2.1, 7.3, 0), App.Vector(-2.1, 11, 0)),
    Part.ArcOfCircle(Part.Circle(App.Vector(0, 11, 0), App.Vector(0, 0, 1), 2.1), math.radians(0), math.radians(180)),
    Part.LineSegment(App.Vector(2.1, 11, 0), App.Vector(2.1, 7.3, 0)),
    Part.ArcOfCircle(Part.Circle(App.Vector(0, 0, 0), App.Vector(0, 0, 1), 7.6), math.radians(16), math.radians(74)),
    Part.LineSegment(App.Vector(7.3, 2.1, 0), App.Vector(11, 2.1, 0)),
    Part.ArcOfCircle(Part.Circle(App.Vector(11, 0, 0), App.Vector(0, 0, 1), 2.1), math.radians(-90), math.radians(90)),
    Part.LineSegment(App.Vector(11, -2.1, 0), App.Vector(7.3, -2.1, 0)),
    Part.ArcOfCircle(Part.Circle(App.Vector(0, 0, 0), App.Vector(0, 0, 1), 7.6), math.radians(-74), math.radians(-16)),
    Part.LineSegment(App.Vector(2.1, -7.3, 0), App.Vector(2.1, -11, 0)),
    Part.ArcOfCircle(Part.Circle(App.Vector(0, -11, 0), App.Vector(0, 0, 1), 2.1), math.radians(180), math.radians(360)),
], False)
sketch21.addConstraint([
    Sketcher.Constraint("Coincident", 0, 2, 1, 2),
    Sketcher.Constraint("Coincident", 1, 1, 2, 1),
    Sketcher.Constraint("Tangent", 2, 2, 3, 2),
    Sketcher.Constraint("Tangent", 3, 1, 4, 1),
    Sketcher.Constraint("Coincident", 4, 2, 5, 2),
    Sketcher.Constraint("Coincident", 5, 1, 6, 1),
    Sketcher.Constraint("Tangent", 6, 2, 7, 2),
    Sketcher.Constraint("Tangent", 7, 1, 8, 1),
    Sketcher.Constraint("Coincident", 8, 2, 9, 2),
    Sketcher.Constraint("Coincident", 9, 1, 10, 1),
    Sketcher.Constraint("Tangent", 10, 2, 11, 2),
    Sketcher.Constraint("Tangent", 11, 1, 12, 1),
    Sketcher.Constraint("Coincident", 12, 2, 13, 2),
    Sketcher.Constraint("Coincident", 13, 1, 14, 1),
    Sketcher.Constraint("Tangent", 14, 2, 15, 2),
    Sketcher.Constraint("Tangent", 15, 1, 0, 1),
    Sketcher.Constraint("Vertical", 0),
    Sketcher.Constraint("Horizontal", 2),
    Sketcher.Constraint("Horizontal", 4),
    Sketcher.Constraint("Vertical", 6),
    Sketcher.Constraint("Vertical", 8),
    Sketcher.Constraint("Horizontal", 10),
    Sketcher.Constraint("Horizontal", 12),
    Sketcher.Constraint("Vertical", 14),
    Sketcher.Constraint("Coincident", 1, 3, -1, 1),
    Sketcher.Constraint("Coincident", 5, 3, -1, 1),
    Sketcher.Constraint("Coincident", 9, 3, -1, 1),
    Sketcher.Constraint("Coincident", 13, 3, -1, 1),
    Sketcher.Constraint("Equal", 1, 5),
    Sketcher.Constraint("Equal", 3, 7),
    Sketcher.Constraint("Equal", 5, 9),
    Sketcher.Constraint("Equal", 7, 11),
    Sketcher.Constraint("Equal", 9, 13),
    Sketcher.Constraint("Equal", 11, 15),
    Sketcher.Constraint("Symmetric", 3, 3, 11, 3, -1, 1),
    Sketcher.Constraint("Symmetric", 7, 3, 15, 3, -1, 1),
    Sketcher.Constraint("PointOnObject", 3, 3, -1),
    Sketcher.Constraint("PointOnObject", 7, 3, -2),
    Sketcher.Constraint("Equal", 12, 0),
    Sketcher.Constraint("Radius", 1, Q("7.6 mm")),
    Sketcher.Constraint("Radius", 3, Q("2.1 mm")),
    Sketcher.Constraint("DistanceX", 3, 3, -1, 1, Q("11 mm")),
])
pocket19 = body.newObject("PartDesign::Pocket", "Pocket018")
pocket19.Profile = sketch21
pocket19.Length = 2
pocket19.Reversed = True
doc.recompute()

fillet3 = body.newObject("PartDesign::Fillet", "Fillet002")
fillet3.Base = (pocket19, edges_at(pocket19, [
    (-7.304, 4.5, -2.1),
    (-2.1, 4.5, -7.304),
    (2.1, 4.5, -7.304),
    (7.304, 4.5, -2.1),
    (7.304, 4.5, 2.1),
    (2.1, 4.5, 7.304),
    (-2.1, 4.5, 7.304),
    (-7.304, 4.5, 2.1),
]))
fillet3.Radius = 1

sketch22 = body.newObject("Sketcher::SketchObject", "Sketch021")
sketch22.AttachmentSupport = (doc.getObject("XZ_Plane"), [""])
sketch22.MapMode = "FlatFace"
sketch22.AttachmentOffset = App.Placement(App.Vector(0, 0, -1.2), App.Rotation())
sketch22.addGeometry(Part.Circle(App.Vector(0, 0, 0), App.Vector(0, 0, 1), 1.6), False)
sketch22.addConstraint([
    Sketcher.Constraint("Coincident", 0, 3, -1, 1),
    Sketcher.Constraint("Diameter", 0, Q("3.2 mm")),
])
pocket20 = body.newObject("PartDesign::Pocket", "Pocket019")
pocket20.Profile = sketch22
pocket20.Type = "ThroughAll"

sketch23 = body.newObject("Sketcher::SketchObject", "Sketch022")
sketch23.AttachmentSupport = (doc.getObject("XZ_Plane"), [""])
sketch23.MapMode = "FlatFace"
sketch23.AttachmentOffset = App.Placement(App.Vector(0, 0, -20), App.Rotation())
sketch23.addGeometry([
    Part.LineSegment(App.Vector(-42.4, -41.7, 0), App.Vector(-41.9, -41.7, 0)),
    Part.ArcOfCircle(Part.Circle(App.Vector(0, 0, 0), App.Vector(0, 0, 1), 59.1), math.radians(-135), math.radians(-45)),
    Part.LineSegment(App.Vector(41.9, -41.7, 0), App.Vector(42.4, -41.7, 0)),
    Part.ArcOfCircle(Part.Circle(App.Vector(0, 0, 0), App.Vector(0, 0, 1), 59.5), math.radians(-136), math.radians(-44)),
    Part.LineSegment(App.Vector(-41.9, 41.7, 0), App.Vector(-42.4, 41.7, 0)),
    Part.ArcOfCircle(Part.Circle(App.Vector(0, 0, 0), App.Vector(0, 0, 1), 59.5), math.radians(44), math.radians(136)),
    Part.LineSegment(App.Vector(42.4, 41.7, 0), App.Vector(41.9, 41.7, 0)),
    Part.ArcOfCircle(Part.Circle(App.Vector(0, 0, 0), App.Vector(0, 0, 1), 59.1), math.radians(45), math.radians(135)),
], False)
sketch23.addConstraint([
    Sketcher.Constraint("Coincident", 0, 2, 1, 1),
    Sketcher.Constraint("Coincident", 1, 2, 2, 1),
    Sketcher.Constraint("Coincident", 2, 2, 3, 2),
    Sketcher.Constraint("Coincident", 3, 1, 0, 1),
    Sketcher.Constraint("Coincident", 4, 2, 5, 2),
    Sketcher.Constraint("Coincident", 5, 1, 6, 1),
    Sketcher.Constraint("Coincident", 6, 2, 7, 1),
    Sketcher.Constraint("Coincident", 7, 2, 4, 1),
    Sketcher.Constraint("Horizontal", 0),
    Sketcher.Constraint("Horizontal", 2),
    Sketcher.Constraint("Horizontal", 4),
    Sketcher.Constraint("Horizontal", 6),
    Sketcher.Constraint("Coincident", 1, 3, -1, 1),
    Sketcher.Constraint("Coincident", 3, 3, -1, 1),
    Sketcher.Constraint("Coincident", 5, 3, -1, 1),
    Sketcher.Constraint("Coincident", 7, 3, -1, 1),
    Sketcher.Constraint("Equal", 3, 5),
    Sketcher.Constraint("Equal", 1, 7),
    Sketcher.Constraint("Horizontal", 0, 2, 1, 2),
    Sketcher.Constraint("Horizontal", 4, 2, 5, 1),
    Sketcher.Constraint("Vertical", 3, 1, 4, 2),
    Sketcher.Constraint("Radius", 1, Q("59.1 mm")),
    Sketcher.Constraint("Radius", 3, Q("59.5 mm")),
    Sketcher.Constraint("DistanceY", 0, 2, -1, 1, Q("41.7 mm")),
])
pocket21 = body.newObject("PartDesign::Pocket", "Pocket020")
pocket21.Profile = sketch23
pocket21.Type = "ThroughAll"
pocket21.Reversed = True

doc.recompute()
